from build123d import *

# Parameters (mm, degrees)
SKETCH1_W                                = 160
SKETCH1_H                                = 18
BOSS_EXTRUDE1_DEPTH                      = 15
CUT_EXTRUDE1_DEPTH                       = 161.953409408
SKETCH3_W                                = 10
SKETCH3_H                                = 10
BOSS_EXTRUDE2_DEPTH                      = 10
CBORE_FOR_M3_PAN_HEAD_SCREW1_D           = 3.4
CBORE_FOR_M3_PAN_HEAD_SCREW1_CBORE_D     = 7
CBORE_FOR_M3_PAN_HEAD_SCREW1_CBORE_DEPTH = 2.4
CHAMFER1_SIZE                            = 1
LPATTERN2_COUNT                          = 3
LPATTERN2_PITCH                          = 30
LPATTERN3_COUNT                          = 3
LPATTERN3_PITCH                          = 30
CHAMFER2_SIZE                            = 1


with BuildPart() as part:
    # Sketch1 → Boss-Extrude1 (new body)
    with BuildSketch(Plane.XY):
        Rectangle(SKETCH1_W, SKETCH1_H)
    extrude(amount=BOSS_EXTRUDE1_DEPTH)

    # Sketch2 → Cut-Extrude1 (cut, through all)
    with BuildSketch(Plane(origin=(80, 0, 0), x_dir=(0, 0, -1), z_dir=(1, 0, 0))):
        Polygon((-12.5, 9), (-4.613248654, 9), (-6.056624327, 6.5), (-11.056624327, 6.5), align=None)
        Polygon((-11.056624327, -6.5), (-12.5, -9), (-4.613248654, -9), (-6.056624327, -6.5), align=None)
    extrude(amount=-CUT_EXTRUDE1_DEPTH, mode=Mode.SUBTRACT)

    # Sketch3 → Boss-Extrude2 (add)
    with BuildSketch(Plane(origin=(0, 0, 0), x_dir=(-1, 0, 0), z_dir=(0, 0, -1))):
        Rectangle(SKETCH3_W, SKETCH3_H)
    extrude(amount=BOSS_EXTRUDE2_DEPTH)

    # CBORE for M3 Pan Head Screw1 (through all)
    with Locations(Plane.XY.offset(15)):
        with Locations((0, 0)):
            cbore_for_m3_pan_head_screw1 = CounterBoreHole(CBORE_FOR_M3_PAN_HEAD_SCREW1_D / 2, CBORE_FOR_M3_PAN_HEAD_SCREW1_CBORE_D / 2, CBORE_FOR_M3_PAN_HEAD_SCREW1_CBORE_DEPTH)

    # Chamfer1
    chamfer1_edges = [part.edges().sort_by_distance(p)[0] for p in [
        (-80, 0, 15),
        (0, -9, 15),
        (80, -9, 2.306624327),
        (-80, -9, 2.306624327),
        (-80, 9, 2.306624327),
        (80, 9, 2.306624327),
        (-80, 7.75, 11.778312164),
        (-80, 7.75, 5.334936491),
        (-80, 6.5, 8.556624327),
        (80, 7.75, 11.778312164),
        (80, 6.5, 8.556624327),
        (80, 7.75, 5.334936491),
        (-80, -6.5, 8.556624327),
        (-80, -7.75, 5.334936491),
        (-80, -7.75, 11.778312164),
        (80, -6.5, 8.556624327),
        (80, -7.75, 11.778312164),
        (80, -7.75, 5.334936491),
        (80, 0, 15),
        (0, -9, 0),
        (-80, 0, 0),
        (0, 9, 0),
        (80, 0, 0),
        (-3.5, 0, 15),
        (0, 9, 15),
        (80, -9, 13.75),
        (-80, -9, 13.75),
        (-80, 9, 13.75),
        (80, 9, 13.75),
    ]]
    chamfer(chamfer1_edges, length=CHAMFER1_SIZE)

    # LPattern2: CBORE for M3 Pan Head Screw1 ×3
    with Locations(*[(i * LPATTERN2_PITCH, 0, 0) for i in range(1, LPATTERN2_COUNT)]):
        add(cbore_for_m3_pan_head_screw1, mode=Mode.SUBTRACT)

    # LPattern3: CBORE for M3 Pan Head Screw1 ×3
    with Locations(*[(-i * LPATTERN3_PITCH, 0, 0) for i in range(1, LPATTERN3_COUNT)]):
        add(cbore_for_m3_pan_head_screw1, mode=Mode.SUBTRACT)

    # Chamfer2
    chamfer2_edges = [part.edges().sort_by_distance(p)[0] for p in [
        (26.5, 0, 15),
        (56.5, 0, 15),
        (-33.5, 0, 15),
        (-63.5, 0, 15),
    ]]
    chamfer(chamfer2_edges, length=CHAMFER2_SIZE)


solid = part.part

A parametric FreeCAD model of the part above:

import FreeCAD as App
import Part
import Sketcher
Q = App.Units.Quantity


def edges_at(feature, points):
    """Names of the edges that pass closest to the given points."""
    edges = feature.Shape.Edges
    near = lambda p: min(range(len(edges)), key=lambda i: edges[i].distToShape(Part.Vertex(*p))[0])
    return sorted({f"Edge{near(p) + 1}" for p in points})

doc = App.newDocument("Part")
body = doc.addObject("PartDesign::Body", "Body")

# Sketch on XY plane
sketch1 = body.newObject("Sketcher::SketchObject", "Sketch")
sketch1.AttachmentSupport = (doc.getObject("XY_Plane"), [""])
sketch1.MapMode = "FlatFace"
sketch1.addGeometry([
    Part.LineSegment(App.Vector(-80, 9, 0), App.Vector(-80, -9, 0)),
    Part.LineSegment(App.Vector(-80, -9, 0), App.Vector(80, -9, 0)),
    Part.LineSegment(App.Vector(80, -9, 0), App.Vector(80, 9, 0)),
    Part.LineSegment(App.Vector(80, 9, 0), App.Vector(-80, 9, 0)),
], False)
sketch1.addConstraint([
    Sketcher.Constraint("Coincident", 0, 2, 1, 1),
    Sketcher.Constraint("Coincident", 1, 2, 2, 1),
    Sketcher.Constraint("Coincident", 2, 2, 3, 1),
    Sketcher.Constraint("Coincident", 3, 2, 0, 1),
    Sketcher.Constraint("Vertical", 0),
    Sketcher.Constraint("Horizontal", 1),
    Sketcher.Constraint("Vertical", 2),
    Sketcher.Constraint("Horizontal", 3),
    Sketcher.Constraint("Symmetric", 0, 2, 2, 2, -1, 1),
    Sketcher.Constraint("DistanceX", 1, 1, 1, 2, 160.0),
    Sketcher.Constraint("DistanceY", 0, 2, 0, 1, 18.0),
])
pad1 = body.newObject("PartDesign::Pad", "Pad")
pad1.Profile = sketch1
pad1.Length = 15

# Sketch on YZ plane
sketch2 = body.newObject("Sketcher::SketchObject", "Sketch001")
sketch2.AttachmentSupport = (doc.getObject("YZ_Plane"), [""])
sketch2.MapMode = "FlatFace"
sketch2.AttachmentOffset = App.Placement(App.Vector(0, 0, 80), App.Rotation())
sketch2.addGeometry([
    Part.LineSegment(App.Vector(9, 4.613249, 0), App.Vector(9, 12.5, 0)),  # 0
    Part.LineSegment(App.Vector(9, 12.5, 0), App.Vector(6.5, 11.056624, 0)),  # 1
    Part.LineSegment(App.Vector(6.5, 11.056624, 0), App.Vector(6.5, 6.056624, 0)),  # 2
    Part.LineSegment(App.Vector(6.5, 6.056624, 0), App.Vector(9, 4.613249, 0)),  # 3
    Part.LineSegment(App.Vector(-6.5, 11.056624, 0), App.Vector(-9, 12.5, 0)),  # 4
    Part.LineSegment(App.Vector(-9, 12.5, 0), App.Vector(-9, 4.613249, 0)),  # 5
    Part.LineSegment(App.Vector(-9, 4.613249, 0), App.Vector(-6.5, 6.056624, 0)),  # 6
    Part.LineSegment(App.Vector(-6.5, 6.056624, 0), App.Vector(-6.5, 11.056624, 0)),  # 7
], False)
sketch2.addConstraint([
    Sketcher.Constraint("Coincident", 0, 2, 1, 1),
    Sketcher.Constraint("Coincident", 1, 2, 2, 1),
    Sketcher.Constraint("Coincident", 2, 2, 3, 1),
    Sketcher.Constraint("Coincident", 3, 2, 0, 1),
    Sketcher.Constraint("Coincident", 4, 2, 5, 1),
    Sketcher.Constraint("Coincident", 5, 2, 6, 1),
    Sketcher.Constraint("Coincident", 6, 2, 7, 1),
    Sketcher.Constraint("Coincident", 7, 2, 4, 1),
    Sketcher.Constraint("Vertical", 0),
    Sketcher.Constraint("Vertical", 2),
    Sketcher.Constraint("Vertical", 5),
    Sketcher.Constraint("Vertical", 7),
    Sketcher.Constraint("Symmetric", 0, 2, 4, 2, -2),
    Sketcher.Constraint("Symmetric", 2, 2, 6, 2, -2),
    Sketcher.Constraint("Parallel", 3, 4),
    Sketcher.Constraint("Parallel", 1, 6),
    Sketcher.Constraint("Horizontal", 3, 2, 5, 2),
    Sketcher.Constraint("DistanceY", 2, 2, 2, 1, 5.0),
    Sketcher.Constraint("Angle", 1, Q("-150 deg")),
    Sketcher.Constraint("DistanceX", -1, 1, 0, 2, 9.0),
    Sketcher.Constraint("DistanceX", 6, 2, 2, 2, 13.0),
    Sketcher.Constraint("DistanceY", -1, 1, 0, 2, 12.5),
])
pocket1 = body.newObject("PartDesign::Pocket", "Pocket")
pocket1.Profile = sketch2
pocket1.Type = "ThroughAll"

# Sketch on XY plane
sketch3 = body.newObject("Sketcher::SketchObject", "Sketch002")
sketch3.AttachmentSupport = (doc.getObject("XY_Plane"), [""])
sketch3.MapMode = "FlatFace"
sketch3.addGeometry([
    Part.LineSegment(App.Vector(5, 5, 0), App.Vector(5, -5, 0)),
    Part.LineSegment(App.Vector(5, -5, 0), App.Vector(-5, -5, 0)),
    Part.LineSegment(App.Vector(-5, -5, 0), App.Vector(-5, 5, 0)),
    Part.LineSegment(App.Vector(-5, 5, 0), App.Vector(5, 5, 0)),
], False)
sketch3.addConstraint([
    Sketcher.Constraint("Coincident", 0, 2, 1, 1),
    Sketcher.Constraint("Coincident", 1, 2, 2, 1),
    Sketcher.Constraint("Coincident", 2, 2, 3, 1),
    Sketcher.Constraint("Coincident", 3, 2, 0, 1),
    Sketcher.Constraint("Vertical", 0),
    Sketcher.Constraint("Horizontal", 1),
    Sketcher.Constraint("Vertical", 2),
    Sketcher.Constraint("Horizontal", 3),
    Sketcher.Constraint("Symmetric", 0, 2, 2, 2, -1, 1),
    Sketcher.Constraint("Equal", 3, 0),
    Sketcher.Constraint("DistanceX", 1, 2, 1, 1, 10.0),
])
pad2 = body.newObject("PartDesign::Pad", "Pad001")
pad2.Profile = sketch3
pad2.Length = 10
pad2.Reversed = True

# Sketch on XY plane
sketch4 = body.newObject("Sketcher::SketchObject", "Sketch003")
sketch4.AttachmentSupport = (doc.getObject("XY_Plane"), [""])
sketch4.MapMode = "FlatFace"
sketch4.AttachmentOffset = App.Placement(App.Vector(0, 0, 15), App.Rotation())
sketch4.addGeometry(Part.Circle(App.Vector(0, 0, 0), App.Vector(0, 0, 1), 1.7), False)
sketch4.addConstraint([
    Sketcher.Constraint("Coincident", 0, 3, -1, 1),
    Sketcher.Constraint("Diameter", 0, 3.4),
])
doc.recompute()
hole = body.newObject("PartDesign::Hole", "Hole")
hole.Profile = sketch4
hole.ThreadType = "None"
hole.Diameter = 3.4
hole.DepthType = "ThroughAll"
hole.HoleCutType = "Counterbore"
hole.HoleCutDiameter = 7
hole.HoleCutDepth = 2.4
doc.recompute()

chamfer = body.newObject("PartDesign::Chamfer", "Chamfer")
chamfer.Base = (hole, edges_at(hole, [
    (-80, 0, 15),
    (0, -9, 15),
    (80, -9, 2.307),
    (-80, -9, 2.307),
    (-80, 9, 2.307),
    (80, 9, 2.307),
    (-80, 7.75, 11.778),
    (-80, 7.75, 5.335),
    (-80, 6.5, 8.557),
    (80, 7.75, 11.778),
    (80, 6.5, 8.557),
    (80, 7.75, 5.335),
    (-80, -6.5, 8.557),
    (-80, -7.75, 5.335),
    (-80, -7.75, 11.778),
    (80, -6.5, 8.557),
    (80, -7.75, 11.778),
    (80, -7.75, 5.335),
    (80, 0, 15),
    (0, -9, 0),
    (-80, 0, 0),
    (0, 9, 0),
    (80, 0, 0),
    (-3.5, 0, 15),
    (0, 9, 15),
    (80, -9, 13.75),
    (-80, -9, 13.75),
    (-80, 9, 13.75),
    (80, 9, 13.75),
]))
chamfer.Size = 1
doc.recompute()

linearpattern = body.newObject("PartDesign::LinearPattern", "LinearPattern")
linearpattern.Originals = [hole]
linearpattern.Direction = (doc.getObject("X_Axis"), [""])
linearpattern.Mode = "offset"
linearpattern.Offset = 30
linearpattern.Occurrences = 3
body.Tip = linearpattern
doc.recompute()

linearpattern2 = body.newObject("PartDesign::LinearPattern", "LinearPattern001")
linearpattern2.Originals = [hole]
linearpattern2.Direction = (doc.getObject("X_Axis"), [""])
linearpattern2.Mode = "offset"
linearpattern2.Offset = 30
linearpattern2.Occurrences = 3
linearpattern2.Reversed = True
body.Tip = linearpattern2
doc.recompute()

chamfer2 = body.newObject("PartDesign::Chamfer", "Chamfer001")
chamfer2.Base = (linearpattern2, edges_at(linearpattern2, [
    (26.5, 0, 15),
    (56.5, 0, 15),
    (-33.5, 0, 15),
    (-63.5, 0, 15),
]))
chamfer2.Size = 1

doc.recompute()
